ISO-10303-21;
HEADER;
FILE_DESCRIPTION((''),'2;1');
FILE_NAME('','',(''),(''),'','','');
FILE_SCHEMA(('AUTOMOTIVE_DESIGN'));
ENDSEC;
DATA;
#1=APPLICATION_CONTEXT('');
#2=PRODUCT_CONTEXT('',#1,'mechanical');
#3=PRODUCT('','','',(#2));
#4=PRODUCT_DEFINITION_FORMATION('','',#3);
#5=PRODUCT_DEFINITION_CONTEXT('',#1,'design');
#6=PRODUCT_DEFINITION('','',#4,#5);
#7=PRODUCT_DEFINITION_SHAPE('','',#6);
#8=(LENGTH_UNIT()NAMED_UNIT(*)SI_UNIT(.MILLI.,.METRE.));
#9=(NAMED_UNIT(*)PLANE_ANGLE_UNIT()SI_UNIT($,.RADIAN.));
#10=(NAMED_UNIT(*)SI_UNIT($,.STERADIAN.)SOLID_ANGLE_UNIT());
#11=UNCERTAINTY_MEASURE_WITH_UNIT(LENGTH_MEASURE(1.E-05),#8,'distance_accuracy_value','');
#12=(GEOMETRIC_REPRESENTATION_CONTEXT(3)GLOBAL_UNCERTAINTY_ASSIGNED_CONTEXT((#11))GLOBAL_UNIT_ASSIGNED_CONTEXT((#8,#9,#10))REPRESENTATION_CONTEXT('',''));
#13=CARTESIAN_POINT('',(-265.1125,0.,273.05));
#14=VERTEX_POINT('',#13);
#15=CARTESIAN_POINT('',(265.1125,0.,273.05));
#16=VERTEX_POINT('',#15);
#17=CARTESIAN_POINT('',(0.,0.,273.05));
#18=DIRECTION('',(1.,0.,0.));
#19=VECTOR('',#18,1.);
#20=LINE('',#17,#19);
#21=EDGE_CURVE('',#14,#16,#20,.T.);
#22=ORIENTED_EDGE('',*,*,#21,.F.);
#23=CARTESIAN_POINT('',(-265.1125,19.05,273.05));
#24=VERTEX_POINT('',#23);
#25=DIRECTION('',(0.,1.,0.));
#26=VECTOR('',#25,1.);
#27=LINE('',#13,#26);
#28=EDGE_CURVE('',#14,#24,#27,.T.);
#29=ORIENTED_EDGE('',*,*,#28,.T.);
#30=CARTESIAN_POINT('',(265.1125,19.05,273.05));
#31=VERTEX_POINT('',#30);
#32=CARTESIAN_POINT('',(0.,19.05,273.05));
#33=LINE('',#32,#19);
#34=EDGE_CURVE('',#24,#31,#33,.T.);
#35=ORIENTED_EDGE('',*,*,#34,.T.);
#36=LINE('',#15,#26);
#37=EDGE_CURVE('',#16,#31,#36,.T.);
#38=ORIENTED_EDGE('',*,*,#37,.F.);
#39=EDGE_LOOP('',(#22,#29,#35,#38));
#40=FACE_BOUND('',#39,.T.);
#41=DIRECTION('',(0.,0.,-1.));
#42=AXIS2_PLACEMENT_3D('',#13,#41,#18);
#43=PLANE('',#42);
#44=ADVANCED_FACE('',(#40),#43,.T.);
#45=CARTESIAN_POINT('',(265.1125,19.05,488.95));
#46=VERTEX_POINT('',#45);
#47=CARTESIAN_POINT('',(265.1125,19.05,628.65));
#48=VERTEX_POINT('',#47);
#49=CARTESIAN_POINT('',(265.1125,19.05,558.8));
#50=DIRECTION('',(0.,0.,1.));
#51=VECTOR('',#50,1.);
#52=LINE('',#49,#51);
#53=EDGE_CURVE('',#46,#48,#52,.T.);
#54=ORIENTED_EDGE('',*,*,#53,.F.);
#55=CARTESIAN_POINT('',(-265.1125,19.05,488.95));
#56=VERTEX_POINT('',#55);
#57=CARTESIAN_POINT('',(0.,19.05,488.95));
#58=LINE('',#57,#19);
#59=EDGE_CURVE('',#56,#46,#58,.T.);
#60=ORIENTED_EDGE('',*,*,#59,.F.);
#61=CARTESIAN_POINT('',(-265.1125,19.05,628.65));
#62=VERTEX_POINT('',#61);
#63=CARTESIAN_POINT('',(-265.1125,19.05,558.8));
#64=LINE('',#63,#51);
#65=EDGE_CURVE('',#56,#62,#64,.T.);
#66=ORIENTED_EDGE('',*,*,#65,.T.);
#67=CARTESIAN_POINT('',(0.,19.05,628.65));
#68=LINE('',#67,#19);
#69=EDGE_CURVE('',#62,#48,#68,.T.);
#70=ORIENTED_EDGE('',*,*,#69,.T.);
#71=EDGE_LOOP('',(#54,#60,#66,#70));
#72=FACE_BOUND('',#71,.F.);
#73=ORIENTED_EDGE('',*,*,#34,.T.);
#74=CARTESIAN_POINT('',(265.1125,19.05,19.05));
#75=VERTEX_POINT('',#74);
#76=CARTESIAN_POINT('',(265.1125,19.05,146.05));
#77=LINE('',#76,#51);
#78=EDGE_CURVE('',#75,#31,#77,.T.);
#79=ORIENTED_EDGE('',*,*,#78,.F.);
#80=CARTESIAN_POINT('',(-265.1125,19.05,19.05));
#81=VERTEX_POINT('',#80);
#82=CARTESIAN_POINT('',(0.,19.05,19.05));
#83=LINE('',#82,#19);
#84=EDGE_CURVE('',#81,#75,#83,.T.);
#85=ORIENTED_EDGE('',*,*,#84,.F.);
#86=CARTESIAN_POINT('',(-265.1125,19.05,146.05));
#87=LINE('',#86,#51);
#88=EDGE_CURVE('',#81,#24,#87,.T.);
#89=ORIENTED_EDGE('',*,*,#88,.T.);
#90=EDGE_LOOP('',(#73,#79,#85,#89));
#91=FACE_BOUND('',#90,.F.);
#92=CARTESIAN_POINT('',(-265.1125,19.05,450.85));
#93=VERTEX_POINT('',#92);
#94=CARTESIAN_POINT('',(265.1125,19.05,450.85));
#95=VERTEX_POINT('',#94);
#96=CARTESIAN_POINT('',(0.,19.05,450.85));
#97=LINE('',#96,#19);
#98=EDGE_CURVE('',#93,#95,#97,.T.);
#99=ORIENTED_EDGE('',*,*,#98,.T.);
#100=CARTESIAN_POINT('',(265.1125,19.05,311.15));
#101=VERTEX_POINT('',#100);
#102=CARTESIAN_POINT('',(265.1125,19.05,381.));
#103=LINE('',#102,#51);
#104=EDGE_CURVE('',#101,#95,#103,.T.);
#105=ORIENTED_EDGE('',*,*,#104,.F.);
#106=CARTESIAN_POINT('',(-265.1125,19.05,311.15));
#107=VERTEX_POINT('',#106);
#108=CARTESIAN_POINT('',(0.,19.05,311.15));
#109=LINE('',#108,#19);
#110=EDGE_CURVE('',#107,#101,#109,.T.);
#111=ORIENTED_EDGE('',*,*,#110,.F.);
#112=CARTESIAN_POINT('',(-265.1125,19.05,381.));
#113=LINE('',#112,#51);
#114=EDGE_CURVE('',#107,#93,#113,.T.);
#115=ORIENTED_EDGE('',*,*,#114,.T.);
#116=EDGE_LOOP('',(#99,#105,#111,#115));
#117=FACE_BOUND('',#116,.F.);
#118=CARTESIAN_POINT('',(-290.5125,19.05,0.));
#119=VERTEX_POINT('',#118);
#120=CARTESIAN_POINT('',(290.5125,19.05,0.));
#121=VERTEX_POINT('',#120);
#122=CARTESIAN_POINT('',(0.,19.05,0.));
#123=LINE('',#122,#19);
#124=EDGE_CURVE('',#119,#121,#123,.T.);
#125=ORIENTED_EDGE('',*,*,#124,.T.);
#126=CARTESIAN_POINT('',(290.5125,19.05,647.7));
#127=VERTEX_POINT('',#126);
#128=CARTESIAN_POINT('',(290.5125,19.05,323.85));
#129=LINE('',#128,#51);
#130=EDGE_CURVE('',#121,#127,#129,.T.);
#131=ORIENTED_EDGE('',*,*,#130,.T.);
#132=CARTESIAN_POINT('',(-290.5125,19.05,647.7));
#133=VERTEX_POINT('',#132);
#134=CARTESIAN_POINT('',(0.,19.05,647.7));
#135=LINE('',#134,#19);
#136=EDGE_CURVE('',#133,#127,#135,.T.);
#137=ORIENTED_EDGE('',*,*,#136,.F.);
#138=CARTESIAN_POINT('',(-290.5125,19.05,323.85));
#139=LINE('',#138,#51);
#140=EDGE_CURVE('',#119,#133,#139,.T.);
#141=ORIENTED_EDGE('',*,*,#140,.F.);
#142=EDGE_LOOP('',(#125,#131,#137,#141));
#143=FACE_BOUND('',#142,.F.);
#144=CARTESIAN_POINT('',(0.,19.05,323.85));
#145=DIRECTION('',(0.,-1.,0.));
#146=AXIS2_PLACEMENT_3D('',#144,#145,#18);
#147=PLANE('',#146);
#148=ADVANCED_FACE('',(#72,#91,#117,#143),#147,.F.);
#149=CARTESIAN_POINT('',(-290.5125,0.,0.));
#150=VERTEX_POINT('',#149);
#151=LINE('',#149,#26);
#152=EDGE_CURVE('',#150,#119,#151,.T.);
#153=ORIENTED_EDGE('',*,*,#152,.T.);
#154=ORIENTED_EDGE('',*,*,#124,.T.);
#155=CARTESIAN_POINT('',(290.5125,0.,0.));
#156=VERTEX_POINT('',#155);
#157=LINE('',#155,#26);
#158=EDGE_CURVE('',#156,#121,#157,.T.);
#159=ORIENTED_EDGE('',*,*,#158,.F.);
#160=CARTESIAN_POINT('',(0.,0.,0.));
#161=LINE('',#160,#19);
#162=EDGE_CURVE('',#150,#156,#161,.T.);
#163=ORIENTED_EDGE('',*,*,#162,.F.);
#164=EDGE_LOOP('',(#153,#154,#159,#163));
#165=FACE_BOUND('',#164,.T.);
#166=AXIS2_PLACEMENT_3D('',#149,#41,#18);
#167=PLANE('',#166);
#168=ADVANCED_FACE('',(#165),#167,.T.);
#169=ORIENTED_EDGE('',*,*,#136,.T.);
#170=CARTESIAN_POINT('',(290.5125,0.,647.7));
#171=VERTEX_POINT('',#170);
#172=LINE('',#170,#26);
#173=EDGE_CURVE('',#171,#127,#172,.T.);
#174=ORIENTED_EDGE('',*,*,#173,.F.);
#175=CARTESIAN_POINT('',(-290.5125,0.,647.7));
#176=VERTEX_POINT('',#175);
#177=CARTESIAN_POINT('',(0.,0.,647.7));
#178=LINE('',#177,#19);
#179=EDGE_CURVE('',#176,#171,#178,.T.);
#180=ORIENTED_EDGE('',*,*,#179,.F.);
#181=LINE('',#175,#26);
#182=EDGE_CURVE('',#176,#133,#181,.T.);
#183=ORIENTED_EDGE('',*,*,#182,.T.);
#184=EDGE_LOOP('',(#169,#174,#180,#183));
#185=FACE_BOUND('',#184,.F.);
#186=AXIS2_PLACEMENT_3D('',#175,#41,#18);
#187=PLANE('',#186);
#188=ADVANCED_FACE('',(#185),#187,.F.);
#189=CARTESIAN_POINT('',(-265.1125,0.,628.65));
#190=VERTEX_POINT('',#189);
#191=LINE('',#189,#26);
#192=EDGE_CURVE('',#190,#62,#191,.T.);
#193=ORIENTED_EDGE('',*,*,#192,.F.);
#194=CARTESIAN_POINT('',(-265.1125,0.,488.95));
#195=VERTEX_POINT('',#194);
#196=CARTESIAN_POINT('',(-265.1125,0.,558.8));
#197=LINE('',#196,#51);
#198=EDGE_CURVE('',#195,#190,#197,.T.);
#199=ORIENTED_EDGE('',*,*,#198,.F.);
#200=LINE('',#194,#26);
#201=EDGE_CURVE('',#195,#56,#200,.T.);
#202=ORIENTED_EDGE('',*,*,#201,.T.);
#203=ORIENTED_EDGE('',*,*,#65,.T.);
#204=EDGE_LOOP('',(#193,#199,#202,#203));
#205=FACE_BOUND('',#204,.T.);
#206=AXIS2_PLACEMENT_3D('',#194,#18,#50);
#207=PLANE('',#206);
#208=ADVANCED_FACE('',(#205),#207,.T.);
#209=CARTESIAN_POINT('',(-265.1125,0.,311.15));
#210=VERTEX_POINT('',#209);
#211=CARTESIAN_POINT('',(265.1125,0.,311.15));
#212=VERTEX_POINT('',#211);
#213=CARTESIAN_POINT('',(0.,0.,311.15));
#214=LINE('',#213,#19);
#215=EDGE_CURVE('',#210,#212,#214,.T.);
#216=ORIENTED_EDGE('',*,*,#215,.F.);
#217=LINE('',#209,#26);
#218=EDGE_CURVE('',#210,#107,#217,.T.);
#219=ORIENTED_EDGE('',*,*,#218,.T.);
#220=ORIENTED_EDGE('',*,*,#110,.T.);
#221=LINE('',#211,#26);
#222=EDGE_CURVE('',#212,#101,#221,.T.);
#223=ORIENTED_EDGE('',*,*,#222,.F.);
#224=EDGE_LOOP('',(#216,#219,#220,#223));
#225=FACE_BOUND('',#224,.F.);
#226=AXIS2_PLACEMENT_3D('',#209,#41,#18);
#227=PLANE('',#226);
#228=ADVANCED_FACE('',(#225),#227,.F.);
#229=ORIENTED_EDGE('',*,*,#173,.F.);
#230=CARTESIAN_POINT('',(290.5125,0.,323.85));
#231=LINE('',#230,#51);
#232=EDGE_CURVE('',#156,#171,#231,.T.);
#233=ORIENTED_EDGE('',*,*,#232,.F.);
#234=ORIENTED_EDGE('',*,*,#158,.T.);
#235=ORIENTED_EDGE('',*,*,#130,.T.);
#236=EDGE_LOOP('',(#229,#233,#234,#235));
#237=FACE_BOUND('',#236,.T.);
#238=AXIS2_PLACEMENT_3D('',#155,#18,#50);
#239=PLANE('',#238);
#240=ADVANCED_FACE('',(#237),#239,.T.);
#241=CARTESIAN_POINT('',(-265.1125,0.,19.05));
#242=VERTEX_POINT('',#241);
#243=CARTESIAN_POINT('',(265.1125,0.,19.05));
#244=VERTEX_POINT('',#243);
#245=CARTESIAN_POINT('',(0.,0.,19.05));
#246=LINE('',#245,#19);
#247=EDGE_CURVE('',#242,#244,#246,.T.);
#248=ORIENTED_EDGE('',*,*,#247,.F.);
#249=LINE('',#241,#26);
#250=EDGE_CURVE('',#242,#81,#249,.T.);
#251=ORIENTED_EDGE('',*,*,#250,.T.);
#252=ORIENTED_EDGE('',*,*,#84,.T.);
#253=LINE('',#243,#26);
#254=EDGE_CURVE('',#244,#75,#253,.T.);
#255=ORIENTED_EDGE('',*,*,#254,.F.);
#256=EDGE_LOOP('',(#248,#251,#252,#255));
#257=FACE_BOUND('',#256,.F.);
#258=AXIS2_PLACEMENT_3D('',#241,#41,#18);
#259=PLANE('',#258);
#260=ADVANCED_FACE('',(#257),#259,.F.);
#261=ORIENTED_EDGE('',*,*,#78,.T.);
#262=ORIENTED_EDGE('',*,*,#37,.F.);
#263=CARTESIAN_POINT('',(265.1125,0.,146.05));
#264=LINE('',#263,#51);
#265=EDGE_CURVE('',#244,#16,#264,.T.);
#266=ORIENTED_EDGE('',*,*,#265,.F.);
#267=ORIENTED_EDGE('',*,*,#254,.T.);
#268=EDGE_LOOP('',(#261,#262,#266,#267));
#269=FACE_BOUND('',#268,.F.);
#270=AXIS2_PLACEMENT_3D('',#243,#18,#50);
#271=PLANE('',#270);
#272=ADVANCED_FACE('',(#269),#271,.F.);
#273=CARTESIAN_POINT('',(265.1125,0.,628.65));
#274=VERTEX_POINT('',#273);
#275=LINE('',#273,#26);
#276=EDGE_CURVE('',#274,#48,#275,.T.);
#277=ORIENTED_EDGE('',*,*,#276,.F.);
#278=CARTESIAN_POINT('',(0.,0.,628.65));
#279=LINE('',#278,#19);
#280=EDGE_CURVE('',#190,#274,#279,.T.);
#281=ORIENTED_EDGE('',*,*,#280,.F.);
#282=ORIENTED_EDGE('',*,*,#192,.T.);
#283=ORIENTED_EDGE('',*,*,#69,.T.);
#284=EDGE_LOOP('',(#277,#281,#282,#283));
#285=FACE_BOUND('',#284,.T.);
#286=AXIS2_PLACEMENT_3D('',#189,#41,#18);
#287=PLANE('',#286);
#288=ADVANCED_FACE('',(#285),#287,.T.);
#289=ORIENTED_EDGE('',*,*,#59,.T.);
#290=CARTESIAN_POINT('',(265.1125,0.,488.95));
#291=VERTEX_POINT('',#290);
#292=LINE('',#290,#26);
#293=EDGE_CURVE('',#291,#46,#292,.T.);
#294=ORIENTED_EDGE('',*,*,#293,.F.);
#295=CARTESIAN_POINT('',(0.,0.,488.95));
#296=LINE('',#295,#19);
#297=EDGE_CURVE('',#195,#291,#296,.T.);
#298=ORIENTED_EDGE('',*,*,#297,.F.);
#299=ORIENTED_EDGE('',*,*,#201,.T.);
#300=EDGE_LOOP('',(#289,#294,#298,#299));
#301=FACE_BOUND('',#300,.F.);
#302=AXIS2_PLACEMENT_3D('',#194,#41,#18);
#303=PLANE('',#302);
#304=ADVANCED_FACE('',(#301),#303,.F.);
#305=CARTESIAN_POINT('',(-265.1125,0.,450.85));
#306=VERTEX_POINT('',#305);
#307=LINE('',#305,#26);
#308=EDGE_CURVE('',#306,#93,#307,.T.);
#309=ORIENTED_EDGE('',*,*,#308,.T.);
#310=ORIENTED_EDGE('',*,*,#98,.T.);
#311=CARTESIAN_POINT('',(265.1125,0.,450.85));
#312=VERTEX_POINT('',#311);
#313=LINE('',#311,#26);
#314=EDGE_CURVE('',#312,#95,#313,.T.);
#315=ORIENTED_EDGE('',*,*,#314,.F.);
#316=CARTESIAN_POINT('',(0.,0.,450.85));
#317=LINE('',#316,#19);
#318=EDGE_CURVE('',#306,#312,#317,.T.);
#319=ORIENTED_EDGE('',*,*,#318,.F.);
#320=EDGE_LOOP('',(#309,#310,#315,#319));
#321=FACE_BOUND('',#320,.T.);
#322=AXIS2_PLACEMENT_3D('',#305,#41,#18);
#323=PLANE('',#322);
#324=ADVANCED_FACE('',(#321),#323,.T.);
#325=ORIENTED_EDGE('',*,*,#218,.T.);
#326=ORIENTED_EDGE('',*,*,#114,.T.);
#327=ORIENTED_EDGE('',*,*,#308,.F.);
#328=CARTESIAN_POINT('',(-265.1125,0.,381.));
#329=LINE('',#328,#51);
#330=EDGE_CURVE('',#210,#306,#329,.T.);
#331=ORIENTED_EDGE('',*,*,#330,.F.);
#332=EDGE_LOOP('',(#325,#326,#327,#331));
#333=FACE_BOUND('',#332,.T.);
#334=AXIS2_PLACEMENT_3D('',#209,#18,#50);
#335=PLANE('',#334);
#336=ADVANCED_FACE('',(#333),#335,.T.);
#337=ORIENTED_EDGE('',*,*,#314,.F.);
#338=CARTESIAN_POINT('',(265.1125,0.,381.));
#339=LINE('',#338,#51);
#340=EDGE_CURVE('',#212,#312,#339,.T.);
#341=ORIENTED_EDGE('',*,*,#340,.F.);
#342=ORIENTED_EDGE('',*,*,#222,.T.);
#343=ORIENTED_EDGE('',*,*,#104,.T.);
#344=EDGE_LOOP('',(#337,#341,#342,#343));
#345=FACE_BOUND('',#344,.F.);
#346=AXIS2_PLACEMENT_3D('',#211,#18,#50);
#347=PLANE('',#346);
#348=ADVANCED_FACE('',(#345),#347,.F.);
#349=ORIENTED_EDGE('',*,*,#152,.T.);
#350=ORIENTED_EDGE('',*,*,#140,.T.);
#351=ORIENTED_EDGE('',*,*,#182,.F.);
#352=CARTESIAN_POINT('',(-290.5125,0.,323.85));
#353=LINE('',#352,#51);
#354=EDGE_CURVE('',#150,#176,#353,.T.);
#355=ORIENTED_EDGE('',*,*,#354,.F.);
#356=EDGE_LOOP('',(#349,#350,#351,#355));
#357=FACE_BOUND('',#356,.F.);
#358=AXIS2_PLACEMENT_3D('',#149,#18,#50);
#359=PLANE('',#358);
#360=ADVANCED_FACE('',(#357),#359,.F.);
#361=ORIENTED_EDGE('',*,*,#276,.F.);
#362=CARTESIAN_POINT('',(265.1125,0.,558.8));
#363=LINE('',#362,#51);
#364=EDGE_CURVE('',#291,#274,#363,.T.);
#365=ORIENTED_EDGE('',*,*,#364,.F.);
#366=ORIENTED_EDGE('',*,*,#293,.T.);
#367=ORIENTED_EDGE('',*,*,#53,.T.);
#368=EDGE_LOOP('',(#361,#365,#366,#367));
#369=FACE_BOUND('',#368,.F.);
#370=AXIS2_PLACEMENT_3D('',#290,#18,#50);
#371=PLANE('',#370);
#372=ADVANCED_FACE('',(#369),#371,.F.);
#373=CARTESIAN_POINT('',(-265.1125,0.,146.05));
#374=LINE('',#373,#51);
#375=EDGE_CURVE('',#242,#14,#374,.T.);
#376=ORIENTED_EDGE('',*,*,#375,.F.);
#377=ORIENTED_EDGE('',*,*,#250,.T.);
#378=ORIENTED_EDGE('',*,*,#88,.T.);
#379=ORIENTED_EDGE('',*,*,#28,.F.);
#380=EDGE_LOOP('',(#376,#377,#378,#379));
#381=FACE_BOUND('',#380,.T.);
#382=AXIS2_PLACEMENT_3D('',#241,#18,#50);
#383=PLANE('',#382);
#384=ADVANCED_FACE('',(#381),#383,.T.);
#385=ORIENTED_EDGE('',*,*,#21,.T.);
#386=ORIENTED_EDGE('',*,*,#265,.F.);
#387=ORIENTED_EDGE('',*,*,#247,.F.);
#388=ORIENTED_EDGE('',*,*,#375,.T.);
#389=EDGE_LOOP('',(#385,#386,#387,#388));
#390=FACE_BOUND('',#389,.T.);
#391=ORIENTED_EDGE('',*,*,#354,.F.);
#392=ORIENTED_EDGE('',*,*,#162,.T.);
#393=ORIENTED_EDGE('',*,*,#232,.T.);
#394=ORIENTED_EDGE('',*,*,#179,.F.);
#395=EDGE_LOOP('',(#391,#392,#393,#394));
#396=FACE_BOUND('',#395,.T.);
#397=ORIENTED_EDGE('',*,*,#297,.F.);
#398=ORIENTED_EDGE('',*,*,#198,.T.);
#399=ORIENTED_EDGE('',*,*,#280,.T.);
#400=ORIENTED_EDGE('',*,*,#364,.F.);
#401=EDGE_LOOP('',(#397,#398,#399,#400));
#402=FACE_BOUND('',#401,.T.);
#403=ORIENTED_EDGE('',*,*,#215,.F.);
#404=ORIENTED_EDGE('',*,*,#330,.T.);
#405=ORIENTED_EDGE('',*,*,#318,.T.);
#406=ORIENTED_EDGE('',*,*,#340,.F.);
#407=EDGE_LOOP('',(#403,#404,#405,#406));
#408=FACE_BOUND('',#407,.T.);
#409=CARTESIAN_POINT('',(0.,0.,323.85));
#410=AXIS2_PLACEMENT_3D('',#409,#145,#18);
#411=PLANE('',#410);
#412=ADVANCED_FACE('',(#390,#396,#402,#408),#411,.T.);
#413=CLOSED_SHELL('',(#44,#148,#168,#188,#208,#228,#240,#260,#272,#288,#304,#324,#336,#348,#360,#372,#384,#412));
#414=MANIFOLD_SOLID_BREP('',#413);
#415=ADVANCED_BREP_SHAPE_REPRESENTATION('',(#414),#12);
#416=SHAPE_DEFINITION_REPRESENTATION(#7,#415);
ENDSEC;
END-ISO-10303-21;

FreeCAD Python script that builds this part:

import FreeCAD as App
import Part
import Sketcher

V = App.Vector
Q = App.Units.Quantity

doc = App.newDocument("Part")
body = doc.addObject("PartDesign::Body", "Body")

# Sketch on XZ plane
sketch1 = body.newObject("Sketcher::SketchObject", "Sketch")
sketch1.AttachmentSupport = (doc.getObject("XZ_Plane"), [""])
sketch1.MapMode = "FlatFace"
sketch1.addGeometry(Part.LineSegment(V(-291, 648, 0), V(-291, 0, 0)), False)
sketch1.addGeometry(Part.LineSegment(V(-291, 0, 0), V(291, 0, 0)), False)
sketch1.addGeometry(Part.LineSegment(V(291, 0, 0), V(291, 648, 0)), False)
sketch1.addGeometry(Part.LineSegment(V(291, 648, 0), V(-291, 648, 0)), False)
sketch1.addGeometry(Part.LineSegment(V(265, 19, 0), V(-265, 19, 0)), False)
sketch1.addGeometry(Part.LineSegment(V(-265, 19, 0), V(-265, 273, 0)), False)
sketch1.addGeometry(Part.LineSegment(V(-265, 273, 0), V(265, 273, 0)), False)
sketch1.addGeometry(Part.LineSegment(V(265, 273, 0), V(265, 19, 0)), False)
sketch1.addGeometry(Part.LineSegment(V(265, 311, 0), V(-265, 311, 0)), False)
sketch1.addGeometry(Part.LineSegment(V(-265, 311, 0), V(-265, 451, 0)), False)
sketch1.addGeometry(Part.LineSegment(V(-265, 451, 0), V(265, 451, 0)), False)
sketch1.addGeometry(Part.LineSegment(V(265, 451, 0), V(265, 311, 0)), False)
sketch1.addGeometry(Part.LineSegment(V(265, 489, 0), V(-265, 489, 0)), False)
sketch1.addGeometry(Part.LineSegment(V(-265, 489, 0), V(-265, 629, 0)), False)
sketch1.addGeometry(Part.LineSegment(V(-265, 629, 0), V(265, 629, 0)), False)
sketch1.addGeometry(Part.LineSegment(V(265, 629, 0), V(265, 489, 0)), False)
sketch1.addConstraint(Sketcher.Constraint("Coincident", 0, 2, 1, 1))
sketch1.addConstraint(Sketcher.Constraint("Coincident", 1, 2, 2, 1))
sketch1.addConstraint(Sketcher.Constraint("Coincident", 2, 2, 3, 1))
sketch1.addConstraint(Sketcher.Constraint("Coincident", 3, 2, 0, 1))
sketch1.addConstraint(Sketcher.Constraint("Coincident", 4, 2, 5, 1))
sketch1.addConstraint(Sketcher.Constraint("Coincident", 5, 2, 6, 1))
sketch1.addConstraint(Sketcher.Constraint("Coincident", 6, 2, 7, 1))
sketch1.addConstraint(Sketcher.Constraint("Coincident", 7, 2, 4, 1))
sketch1.addConstraint(Sketcher.Constraint("Coincident", 8, 2, 9, 1))
sketch1.addConstraint(Sketcher.Constraint("Coincident", 9, 2, 10, 1))
sketch1.addConstraint(Sketcher.Constraint("Coincident", 10, 2, 11, 1))
sketch1.addConstraint(Sketcher.Constraint("Coincident", 11, 2, 8, 1))
sketch1.addConstraint(Sketcher.Constraint("Coincident", 12, 2, 13, 1))
sketch1.addConstraint(Sketcher.Constraint("Coincident", 13, 2, 14, 1))
sketch1.addConstraint(Sketcher.Constraint("Coincident", 14, 2, 15, 1))
sketch1.addConstraint(Sketcher.Constraint("Coincident", 15, 2, 12, 1))
sketch1.addConstraint(Sketcher.Constraint("Vertical", 0))
sketch1.addConstraint(Sketcher.Constraint("Horizontal", 1))
sketch1.addConstraint(Sketcher.Constraint("Vertical", 2))
sketch1.addConstraint(Sketcher.Constraint("Horizontal", 3))
sketch1.addConstraint(Sketcher.Constraint("Horizontal", 4))
sketch1.addConstraint(Sketcher.Constraint("Vertical", 5))
sketch1.addConstraint(Sketcher.Constraint("Horizontal", 6))
sketch1.addConstraint(Sketcher.Constraint("Vertical", 7))
sketch1.addConstraint(Sketcher.Constraint("Horizontal", 8))
sketch1.addConstraint(Sketcher.Constraint("Vertical", 9))
sketch1.addConstraint(Sketcher.Constraint("Horizontal", 10))
sketch1.addConstraint(Sketcher.Constraint("Vertical", 11))
sketch1.addConstraint(Sketcher.Constraint("Horizontal", 12))
sketch1.addConstraint(Sketcher.Constraint("Vertical", 13))
sketch1.addConstraint(Sketcher.Constraint("Horizontal", 14))
sketch1.addConstraint(Sketcher.Constraint("Vertical", 15))
sketch1.addConstraint(Sketcher.Constraint("Symmetric", 0, 2, 1, 2, -1, 1))
sketch1.addConstraint(Sketcher.Constraint("Vertical", 5, 2, 8, 2))
sketch1.addConstraint(Sketcher.Constraint("Vertical", 7, 2, 10, 2))
sketch1.addConstraint(Sketcher.Constraint("Vertical", 9, 2, 12, 2))
sketch1.addConstraint(Sketcher.Constraint("Vertical", 11, 2, 14, 2))
sketch1.addConstraint(Sketcher.Constraint("Equal", 11, 13))
sketch1.addConstraint(Sketcher.Constraint("DistanceY", 5, 1, 5, 2, Q("10 in")))
sketch1.addConstraint(Sketcher.Constraint("DistanceY", 0, 2, 0, 1, Q("25.5 in")))
sketch1.addConstraint(Sketcher.Constraint("DistanceY", 9, 1, 9, 2, Q("5.5 in")))
sketch1.addConstraint(Sketcher.Constraint("DistanceX", 0, 2, 4, 2, Q("1 in")))
sketch1.addConstraint(Sketcher.Constraint("DistanceX", 6, 2, 1, 2, Q("1 in")))
sketch1.addConstraint(Sketcher.Constraint("DistanceY", 5, 2, 9, 2, Q("7 in")))
sketch1.addConstraint(Sketcher.Constraint("DistanceY", 8, 2, 12, 2, Q("7 in")))
sketch1.addConstraint(Sketcher.Constraint("DistanceX", 1, 1, 1, 2, Q("22.875 in")))
sketch1.addConstraint(Sketcher.Constraint("DistanceY", -1, 1, 4, 2, Q("0.75 in")))
pad1 = body.newObject("PartDesign::Pad", "Pad")
pad1.Profile = sketch1
pad1.Length = Q("0.75 in")
pad1.Reversed = True

doc.recompute()
